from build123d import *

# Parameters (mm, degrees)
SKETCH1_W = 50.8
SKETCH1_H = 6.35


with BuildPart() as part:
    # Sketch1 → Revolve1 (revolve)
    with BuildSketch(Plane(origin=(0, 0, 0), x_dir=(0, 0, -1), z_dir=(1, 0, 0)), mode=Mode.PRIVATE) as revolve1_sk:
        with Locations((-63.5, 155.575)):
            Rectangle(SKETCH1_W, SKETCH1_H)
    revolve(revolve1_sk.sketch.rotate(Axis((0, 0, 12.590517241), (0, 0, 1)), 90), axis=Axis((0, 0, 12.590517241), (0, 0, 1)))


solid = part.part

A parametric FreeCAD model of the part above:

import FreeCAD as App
import Part
import Sketcher
from FreeCAD import Vector
Q = App.Units.Quantity


def add_polygon(sketch, points):
    """Adds a closed chain of lines whose ends are joined by coincident constraints."""
    first, n = sketch.GeometryCount, len(points)
    for a, b in zip(points, points[1:] + points[:1]):
        sketch.addGeometry(Part.LineSegment(App.Vector(*a, 0), App.Vector(*b, 0)), False)
    for i in range(n):
        sketch.addConstraint(Sketcher.Constraint("Coincident", first + i, 2, first + (i + 1) % n, 1))

doc = App.newDocument("Part")
body = doc.addObject("PartDesign::Body", "Body")

# Sketch on YZ plane
sketch1 = doc.addObject("Sketcher::SketchObject", "Sketch")
body.addObject(sketch1)
sketch1.AttachmentSupport = (doc.YZ_Plane, [""])
sketch1.MapMode = "FlatFace"
add_polygon(sketch1, [(159, 89), (152, 89), (152, 38), (159, 38)])  # lines 0-3
sketch1.addConstraint([
    Sketcher.Constraint("Horizontal", 0),
    Sketcher.Constraint("Vertical", 1),
    Sketcher.Constraint("Horizontal", 2),
    Sketcher.Constraint("Vertical", 3),
    Sketcher.Constraint("DistanceY", 1, 2, 1, 1, Q("2 in")),
    Sketcher.Constraint("DistanceX", -1, 1, 0, 2, Q("6 in")),
    Sketcher.Constraint("DistanceX", 0, 2, 0, 1, Q("0.25 in")),
    Sketcher.Constraint("DistanceY", -1, 1, 0, 2, Q("3.5 in")),
])
revolution = doc.addObject("PartDesign::Revolution", "Revolution")
body.addObject(revolution)
revolution.Profile = sketch1
revolution.ReferenceAxis = (sketch1, ["V_Axis"])
revolution.Angle = 360

doc.recompute()
